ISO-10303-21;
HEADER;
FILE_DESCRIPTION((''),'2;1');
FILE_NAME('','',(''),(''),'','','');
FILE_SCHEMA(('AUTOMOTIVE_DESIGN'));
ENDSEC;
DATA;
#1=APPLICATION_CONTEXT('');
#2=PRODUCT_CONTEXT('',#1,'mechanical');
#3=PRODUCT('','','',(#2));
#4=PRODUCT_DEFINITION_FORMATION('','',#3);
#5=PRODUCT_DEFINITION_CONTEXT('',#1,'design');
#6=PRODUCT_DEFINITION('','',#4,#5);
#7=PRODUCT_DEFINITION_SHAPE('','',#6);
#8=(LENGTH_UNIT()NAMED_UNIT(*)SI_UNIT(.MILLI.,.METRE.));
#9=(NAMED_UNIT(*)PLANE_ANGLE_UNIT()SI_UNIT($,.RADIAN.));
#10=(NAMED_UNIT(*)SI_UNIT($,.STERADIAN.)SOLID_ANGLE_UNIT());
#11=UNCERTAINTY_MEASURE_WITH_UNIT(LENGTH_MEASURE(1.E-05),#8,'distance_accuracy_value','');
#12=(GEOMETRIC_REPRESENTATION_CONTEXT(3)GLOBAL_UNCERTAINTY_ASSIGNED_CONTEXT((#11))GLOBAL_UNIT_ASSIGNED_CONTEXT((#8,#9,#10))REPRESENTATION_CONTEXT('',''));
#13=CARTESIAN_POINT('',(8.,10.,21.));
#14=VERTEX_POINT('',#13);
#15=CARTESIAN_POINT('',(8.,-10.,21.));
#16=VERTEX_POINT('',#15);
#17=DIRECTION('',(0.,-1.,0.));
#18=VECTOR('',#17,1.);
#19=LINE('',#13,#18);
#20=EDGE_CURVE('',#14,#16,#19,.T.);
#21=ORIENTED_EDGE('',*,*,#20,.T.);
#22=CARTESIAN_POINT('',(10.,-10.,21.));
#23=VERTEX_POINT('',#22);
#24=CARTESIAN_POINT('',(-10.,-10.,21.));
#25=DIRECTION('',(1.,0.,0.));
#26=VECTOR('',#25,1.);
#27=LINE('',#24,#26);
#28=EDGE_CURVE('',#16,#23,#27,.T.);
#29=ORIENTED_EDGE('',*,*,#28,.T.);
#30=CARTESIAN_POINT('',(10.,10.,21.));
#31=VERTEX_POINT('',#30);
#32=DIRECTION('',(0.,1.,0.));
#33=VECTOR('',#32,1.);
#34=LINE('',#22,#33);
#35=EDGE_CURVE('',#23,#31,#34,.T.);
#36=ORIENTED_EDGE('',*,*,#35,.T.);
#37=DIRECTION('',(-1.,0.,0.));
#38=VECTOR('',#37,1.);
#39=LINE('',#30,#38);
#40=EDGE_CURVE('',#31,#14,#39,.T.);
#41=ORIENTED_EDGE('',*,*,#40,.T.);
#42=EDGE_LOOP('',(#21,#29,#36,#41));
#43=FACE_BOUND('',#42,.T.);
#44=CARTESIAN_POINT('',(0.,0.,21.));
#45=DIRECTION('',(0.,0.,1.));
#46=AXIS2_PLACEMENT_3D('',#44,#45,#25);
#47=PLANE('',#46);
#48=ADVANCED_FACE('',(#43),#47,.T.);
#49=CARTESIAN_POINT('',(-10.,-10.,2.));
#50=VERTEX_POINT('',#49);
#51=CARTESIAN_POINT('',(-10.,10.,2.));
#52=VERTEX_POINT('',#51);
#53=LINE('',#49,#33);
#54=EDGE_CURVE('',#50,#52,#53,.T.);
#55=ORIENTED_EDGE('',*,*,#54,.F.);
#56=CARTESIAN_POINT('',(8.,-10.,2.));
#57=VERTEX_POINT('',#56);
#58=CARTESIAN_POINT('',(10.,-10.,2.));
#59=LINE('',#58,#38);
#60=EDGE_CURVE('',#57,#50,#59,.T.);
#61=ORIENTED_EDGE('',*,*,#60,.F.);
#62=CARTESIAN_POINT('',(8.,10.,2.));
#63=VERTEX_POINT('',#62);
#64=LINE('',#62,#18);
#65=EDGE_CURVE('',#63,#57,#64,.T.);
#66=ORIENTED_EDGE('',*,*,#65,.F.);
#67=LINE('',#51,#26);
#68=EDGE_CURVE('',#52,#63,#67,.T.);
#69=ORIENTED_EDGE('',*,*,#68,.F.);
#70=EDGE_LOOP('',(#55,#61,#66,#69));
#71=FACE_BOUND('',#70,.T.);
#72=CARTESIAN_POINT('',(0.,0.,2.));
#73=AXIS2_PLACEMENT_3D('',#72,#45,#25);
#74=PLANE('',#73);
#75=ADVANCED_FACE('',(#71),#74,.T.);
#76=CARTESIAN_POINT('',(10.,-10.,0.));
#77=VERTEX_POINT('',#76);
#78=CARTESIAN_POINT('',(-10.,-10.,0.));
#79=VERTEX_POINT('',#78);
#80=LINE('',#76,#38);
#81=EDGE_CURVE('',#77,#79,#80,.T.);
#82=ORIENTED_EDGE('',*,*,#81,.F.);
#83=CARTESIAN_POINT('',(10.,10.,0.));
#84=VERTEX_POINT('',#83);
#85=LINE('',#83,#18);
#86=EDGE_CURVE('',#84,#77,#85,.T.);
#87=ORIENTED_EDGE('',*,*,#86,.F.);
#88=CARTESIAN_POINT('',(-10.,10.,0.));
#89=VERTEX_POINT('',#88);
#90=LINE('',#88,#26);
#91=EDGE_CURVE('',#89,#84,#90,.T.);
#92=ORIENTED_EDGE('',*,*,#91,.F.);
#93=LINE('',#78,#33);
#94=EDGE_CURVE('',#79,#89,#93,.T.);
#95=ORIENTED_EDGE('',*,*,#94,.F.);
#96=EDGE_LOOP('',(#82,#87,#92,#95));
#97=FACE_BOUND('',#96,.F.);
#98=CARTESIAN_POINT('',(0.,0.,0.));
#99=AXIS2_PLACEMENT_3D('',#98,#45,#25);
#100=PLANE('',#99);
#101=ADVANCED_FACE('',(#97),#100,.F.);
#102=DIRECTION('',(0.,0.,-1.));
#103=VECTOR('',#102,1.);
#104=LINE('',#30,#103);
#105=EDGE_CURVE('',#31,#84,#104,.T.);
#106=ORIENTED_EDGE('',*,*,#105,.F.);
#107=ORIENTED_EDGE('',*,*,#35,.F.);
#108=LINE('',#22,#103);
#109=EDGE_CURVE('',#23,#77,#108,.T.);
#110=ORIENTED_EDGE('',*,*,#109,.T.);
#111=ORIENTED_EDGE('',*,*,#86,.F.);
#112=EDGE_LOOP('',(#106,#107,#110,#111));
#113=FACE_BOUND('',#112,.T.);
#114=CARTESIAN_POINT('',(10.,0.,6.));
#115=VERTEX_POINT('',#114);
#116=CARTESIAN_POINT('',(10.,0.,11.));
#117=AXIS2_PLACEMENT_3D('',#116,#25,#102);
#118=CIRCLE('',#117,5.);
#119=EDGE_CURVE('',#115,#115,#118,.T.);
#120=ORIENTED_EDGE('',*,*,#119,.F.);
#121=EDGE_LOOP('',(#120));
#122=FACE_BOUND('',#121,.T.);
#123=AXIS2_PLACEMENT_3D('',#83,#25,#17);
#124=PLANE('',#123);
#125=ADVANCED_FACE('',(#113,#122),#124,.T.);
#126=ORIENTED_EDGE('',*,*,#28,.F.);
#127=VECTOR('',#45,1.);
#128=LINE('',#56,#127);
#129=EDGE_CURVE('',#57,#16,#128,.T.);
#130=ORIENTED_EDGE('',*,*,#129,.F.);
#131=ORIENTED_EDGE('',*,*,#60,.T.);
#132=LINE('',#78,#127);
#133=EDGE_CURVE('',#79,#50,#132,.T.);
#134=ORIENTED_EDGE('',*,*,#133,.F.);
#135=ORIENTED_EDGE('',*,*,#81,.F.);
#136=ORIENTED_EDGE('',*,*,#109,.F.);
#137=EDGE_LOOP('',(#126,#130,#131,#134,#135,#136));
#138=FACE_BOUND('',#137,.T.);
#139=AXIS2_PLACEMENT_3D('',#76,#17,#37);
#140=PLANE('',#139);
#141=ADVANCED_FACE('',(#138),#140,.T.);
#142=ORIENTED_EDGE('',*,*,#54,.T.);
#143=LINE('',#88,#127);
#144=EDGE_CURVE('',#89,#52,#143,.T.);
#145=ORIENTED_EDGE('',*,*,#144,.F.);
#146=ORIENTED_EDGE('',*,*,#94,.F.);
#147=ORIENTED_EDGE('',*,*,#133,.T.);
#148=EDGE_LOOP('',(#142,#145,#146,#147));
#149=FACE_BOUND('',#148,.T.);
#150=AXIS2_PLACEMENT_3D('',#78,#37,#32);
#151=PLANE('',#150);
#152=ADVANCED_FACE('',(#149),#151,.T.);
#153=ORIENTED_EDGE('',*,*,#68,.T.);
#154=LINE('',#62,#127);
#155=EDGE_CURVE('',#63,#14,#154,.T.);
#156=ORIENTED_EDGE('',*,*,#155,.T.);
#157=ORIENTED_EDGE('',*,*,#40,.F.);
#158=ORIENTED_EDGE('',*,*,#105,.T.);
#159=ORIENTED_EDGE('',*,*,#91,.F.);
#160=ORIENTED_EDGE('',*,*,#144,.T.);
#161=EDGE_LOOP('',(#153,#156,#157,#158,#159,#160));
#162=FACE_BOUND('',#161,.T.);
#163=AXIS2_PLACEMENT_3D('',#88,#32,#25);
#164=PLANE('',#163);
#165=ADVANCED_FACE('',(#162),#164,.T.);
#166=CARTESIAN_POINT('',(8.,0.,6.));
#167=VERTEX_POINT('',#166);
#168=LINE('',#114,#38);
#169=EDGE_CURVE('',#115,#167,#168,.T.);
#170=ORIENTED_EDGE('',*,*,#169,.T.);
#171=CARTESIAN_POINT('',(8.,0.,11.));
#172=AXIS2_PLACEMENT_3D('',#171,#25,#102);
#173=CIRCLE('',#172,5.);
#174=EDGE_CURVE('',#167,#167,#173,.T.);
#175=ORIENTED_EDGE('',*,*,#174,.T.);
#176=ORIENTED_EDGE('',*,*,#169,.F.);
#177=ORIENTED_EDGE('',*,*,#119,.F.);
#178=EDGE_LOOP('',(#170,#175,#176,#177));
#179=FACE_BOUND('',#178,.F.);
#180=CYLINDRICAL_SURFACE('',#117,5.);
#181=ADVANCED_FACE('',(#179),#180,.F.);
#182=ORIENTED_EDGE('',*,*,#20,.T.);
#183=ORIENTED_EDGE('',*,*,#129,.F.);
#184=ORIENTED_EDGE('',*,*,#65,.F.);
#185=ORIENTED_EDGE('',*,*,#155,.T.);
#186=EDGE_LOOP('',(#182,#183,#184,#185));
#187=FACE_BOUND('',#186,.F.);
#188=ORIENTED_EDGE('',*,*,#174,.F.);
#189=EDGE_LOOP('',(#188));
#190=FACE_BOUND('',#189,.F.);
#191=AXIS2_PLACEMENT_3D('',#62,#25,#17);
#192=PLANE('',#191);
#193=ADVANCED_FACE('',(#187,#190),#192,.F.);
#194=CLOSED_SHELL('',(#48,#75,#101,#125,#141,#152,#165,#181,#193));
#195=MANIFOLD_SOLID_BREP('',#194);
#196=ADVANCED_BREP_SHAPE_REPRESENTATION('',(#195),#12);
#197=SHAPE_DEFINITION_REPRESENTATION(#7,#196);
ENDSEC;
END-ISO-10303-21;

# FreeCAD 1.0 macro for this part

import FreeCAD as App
import Part
import Sketcher


def add_polygon(sketch, points):
    """Adds a closed chain of lines whose ends are joined by coincident constraints."""
    first, n = sketch.GeometryCount, len(points)
    for a, b in zip(points, points[1:] + points[:1]):
        sketch.addGeometry(Part.LineSegment(App.Vector(*a, 0), App.Vector(*b, 0)), False)
    for i in range(n):
        sketch.addConstraint(Sketcher.Constraint("Coincident", first + i, 2, first + (i + 1) % n, 1))

doc = App.newDocument("Part")
body = doc.addObject("PartDesign::Body", "Body")

sketch1 = doc.addObject("Sketcher::SketchObject", "Sketch")
body.addObject(sketch1)
sketch1.AttachmentSupport = (doc.XY_Plane, [""])
sketch1.MapMode = "FlatFace"
add_polygon(sketch1, [(10, 10), (-10, 10), (-10, -10), (10, -10)])
sketch1.addConstraint([
    Sketcher.Constraint("Horizontal", 0),
    Sketcher.Constraint("Vertical", 1),
    Sketcher.Constraint("Horizontal", 2),
    Sketcher.Constraint("Vertical", 3),
    Sketcher.Constraint("Symmetric", 0, 2, 2, 2, -1, 1),
    Sketcher.Constraint("Equal", 2, 1),
    Sketcher.Constraint("DistanceX", 0, 2, 0, 1, 20.0),
])
pad1 = doc.addObject("PartDesign::Pad", "Pad")
body.addObject(pad1)
pad1.Profile = sketch1
pad1.Length = 2

sketch2 = doc.addObject("Sketcher::SketchObject", "Sketch001")
body.addObject(sketch2)
sketch2.AttachmentSupport = (doc.XY_Plane, [""])
sketch2.MapMode = "FlatFace"
sketch2.AttachmentOffset = App.Placement(App.Vector(0, 0, 2), App.Rotation())
add_polygon(sketch2, [(10, -10), (10, 10), (8, 10), (8, -10)])
sketch2.addConstraint([
    Sketcher.Constraint("Vertical", 0),
    Sketcher.Constraint("Horizontal", 1),
    Sketcher.Constraint("Vertical", 2),
    Sketcher.Constraint("Horizontal", 3),
    Sketcher.Constraint("DistanceX", 1, 2, 1, 1, 2.0),
    Sketcher.Constraint("DistanceY", 0, 1, 0, 2, 20.0),
    Sketcher.Constraint("DistanceX", -1, 1, 0, 2, 10.0),
    Sketcher.Constraint("DistanceY", -1, 1, 0, 2, 10.0),
])
pad2 = doc.addObject("PartDesign::Pad", "Pad001")
body.addObject(pad2)
pad2.Profile = sketch2
pad2.Length = 19

sketch3 = doc.addObject("Sketcher::SketchObject", "Sketch002")
body.addObject(sketch3)
sketch3.AttachmentSupport = (doc.YZ_Plane, [""])
sketch3.MapMode = "FlatFace"
sketch3.AttachmentOffset = App.Placement(App.Vector(0, 0, 10), App.Rotation())
sketch3.addGeometry(Part.Circle(App.Vector(0, 11, 0), App.Vector(0, 0, 1), 5), False)
sketch3.addConstraint([
    Sketcher.Constraint("PointOnObject", 0, 3, -2),
    Sketcher.Constraint("Diameter", 0, 10.0),
    Sketcher.Constraint("DistanceY", -1, 1, 0, 3, 11.0),
])
pocket1 = doc.addObject("PartDesign::Pocket", "Pocket")
body.addObject(pocket1)
pocket1.Profile = sketch3
pocket1.Length = 2

doc.recompute()
